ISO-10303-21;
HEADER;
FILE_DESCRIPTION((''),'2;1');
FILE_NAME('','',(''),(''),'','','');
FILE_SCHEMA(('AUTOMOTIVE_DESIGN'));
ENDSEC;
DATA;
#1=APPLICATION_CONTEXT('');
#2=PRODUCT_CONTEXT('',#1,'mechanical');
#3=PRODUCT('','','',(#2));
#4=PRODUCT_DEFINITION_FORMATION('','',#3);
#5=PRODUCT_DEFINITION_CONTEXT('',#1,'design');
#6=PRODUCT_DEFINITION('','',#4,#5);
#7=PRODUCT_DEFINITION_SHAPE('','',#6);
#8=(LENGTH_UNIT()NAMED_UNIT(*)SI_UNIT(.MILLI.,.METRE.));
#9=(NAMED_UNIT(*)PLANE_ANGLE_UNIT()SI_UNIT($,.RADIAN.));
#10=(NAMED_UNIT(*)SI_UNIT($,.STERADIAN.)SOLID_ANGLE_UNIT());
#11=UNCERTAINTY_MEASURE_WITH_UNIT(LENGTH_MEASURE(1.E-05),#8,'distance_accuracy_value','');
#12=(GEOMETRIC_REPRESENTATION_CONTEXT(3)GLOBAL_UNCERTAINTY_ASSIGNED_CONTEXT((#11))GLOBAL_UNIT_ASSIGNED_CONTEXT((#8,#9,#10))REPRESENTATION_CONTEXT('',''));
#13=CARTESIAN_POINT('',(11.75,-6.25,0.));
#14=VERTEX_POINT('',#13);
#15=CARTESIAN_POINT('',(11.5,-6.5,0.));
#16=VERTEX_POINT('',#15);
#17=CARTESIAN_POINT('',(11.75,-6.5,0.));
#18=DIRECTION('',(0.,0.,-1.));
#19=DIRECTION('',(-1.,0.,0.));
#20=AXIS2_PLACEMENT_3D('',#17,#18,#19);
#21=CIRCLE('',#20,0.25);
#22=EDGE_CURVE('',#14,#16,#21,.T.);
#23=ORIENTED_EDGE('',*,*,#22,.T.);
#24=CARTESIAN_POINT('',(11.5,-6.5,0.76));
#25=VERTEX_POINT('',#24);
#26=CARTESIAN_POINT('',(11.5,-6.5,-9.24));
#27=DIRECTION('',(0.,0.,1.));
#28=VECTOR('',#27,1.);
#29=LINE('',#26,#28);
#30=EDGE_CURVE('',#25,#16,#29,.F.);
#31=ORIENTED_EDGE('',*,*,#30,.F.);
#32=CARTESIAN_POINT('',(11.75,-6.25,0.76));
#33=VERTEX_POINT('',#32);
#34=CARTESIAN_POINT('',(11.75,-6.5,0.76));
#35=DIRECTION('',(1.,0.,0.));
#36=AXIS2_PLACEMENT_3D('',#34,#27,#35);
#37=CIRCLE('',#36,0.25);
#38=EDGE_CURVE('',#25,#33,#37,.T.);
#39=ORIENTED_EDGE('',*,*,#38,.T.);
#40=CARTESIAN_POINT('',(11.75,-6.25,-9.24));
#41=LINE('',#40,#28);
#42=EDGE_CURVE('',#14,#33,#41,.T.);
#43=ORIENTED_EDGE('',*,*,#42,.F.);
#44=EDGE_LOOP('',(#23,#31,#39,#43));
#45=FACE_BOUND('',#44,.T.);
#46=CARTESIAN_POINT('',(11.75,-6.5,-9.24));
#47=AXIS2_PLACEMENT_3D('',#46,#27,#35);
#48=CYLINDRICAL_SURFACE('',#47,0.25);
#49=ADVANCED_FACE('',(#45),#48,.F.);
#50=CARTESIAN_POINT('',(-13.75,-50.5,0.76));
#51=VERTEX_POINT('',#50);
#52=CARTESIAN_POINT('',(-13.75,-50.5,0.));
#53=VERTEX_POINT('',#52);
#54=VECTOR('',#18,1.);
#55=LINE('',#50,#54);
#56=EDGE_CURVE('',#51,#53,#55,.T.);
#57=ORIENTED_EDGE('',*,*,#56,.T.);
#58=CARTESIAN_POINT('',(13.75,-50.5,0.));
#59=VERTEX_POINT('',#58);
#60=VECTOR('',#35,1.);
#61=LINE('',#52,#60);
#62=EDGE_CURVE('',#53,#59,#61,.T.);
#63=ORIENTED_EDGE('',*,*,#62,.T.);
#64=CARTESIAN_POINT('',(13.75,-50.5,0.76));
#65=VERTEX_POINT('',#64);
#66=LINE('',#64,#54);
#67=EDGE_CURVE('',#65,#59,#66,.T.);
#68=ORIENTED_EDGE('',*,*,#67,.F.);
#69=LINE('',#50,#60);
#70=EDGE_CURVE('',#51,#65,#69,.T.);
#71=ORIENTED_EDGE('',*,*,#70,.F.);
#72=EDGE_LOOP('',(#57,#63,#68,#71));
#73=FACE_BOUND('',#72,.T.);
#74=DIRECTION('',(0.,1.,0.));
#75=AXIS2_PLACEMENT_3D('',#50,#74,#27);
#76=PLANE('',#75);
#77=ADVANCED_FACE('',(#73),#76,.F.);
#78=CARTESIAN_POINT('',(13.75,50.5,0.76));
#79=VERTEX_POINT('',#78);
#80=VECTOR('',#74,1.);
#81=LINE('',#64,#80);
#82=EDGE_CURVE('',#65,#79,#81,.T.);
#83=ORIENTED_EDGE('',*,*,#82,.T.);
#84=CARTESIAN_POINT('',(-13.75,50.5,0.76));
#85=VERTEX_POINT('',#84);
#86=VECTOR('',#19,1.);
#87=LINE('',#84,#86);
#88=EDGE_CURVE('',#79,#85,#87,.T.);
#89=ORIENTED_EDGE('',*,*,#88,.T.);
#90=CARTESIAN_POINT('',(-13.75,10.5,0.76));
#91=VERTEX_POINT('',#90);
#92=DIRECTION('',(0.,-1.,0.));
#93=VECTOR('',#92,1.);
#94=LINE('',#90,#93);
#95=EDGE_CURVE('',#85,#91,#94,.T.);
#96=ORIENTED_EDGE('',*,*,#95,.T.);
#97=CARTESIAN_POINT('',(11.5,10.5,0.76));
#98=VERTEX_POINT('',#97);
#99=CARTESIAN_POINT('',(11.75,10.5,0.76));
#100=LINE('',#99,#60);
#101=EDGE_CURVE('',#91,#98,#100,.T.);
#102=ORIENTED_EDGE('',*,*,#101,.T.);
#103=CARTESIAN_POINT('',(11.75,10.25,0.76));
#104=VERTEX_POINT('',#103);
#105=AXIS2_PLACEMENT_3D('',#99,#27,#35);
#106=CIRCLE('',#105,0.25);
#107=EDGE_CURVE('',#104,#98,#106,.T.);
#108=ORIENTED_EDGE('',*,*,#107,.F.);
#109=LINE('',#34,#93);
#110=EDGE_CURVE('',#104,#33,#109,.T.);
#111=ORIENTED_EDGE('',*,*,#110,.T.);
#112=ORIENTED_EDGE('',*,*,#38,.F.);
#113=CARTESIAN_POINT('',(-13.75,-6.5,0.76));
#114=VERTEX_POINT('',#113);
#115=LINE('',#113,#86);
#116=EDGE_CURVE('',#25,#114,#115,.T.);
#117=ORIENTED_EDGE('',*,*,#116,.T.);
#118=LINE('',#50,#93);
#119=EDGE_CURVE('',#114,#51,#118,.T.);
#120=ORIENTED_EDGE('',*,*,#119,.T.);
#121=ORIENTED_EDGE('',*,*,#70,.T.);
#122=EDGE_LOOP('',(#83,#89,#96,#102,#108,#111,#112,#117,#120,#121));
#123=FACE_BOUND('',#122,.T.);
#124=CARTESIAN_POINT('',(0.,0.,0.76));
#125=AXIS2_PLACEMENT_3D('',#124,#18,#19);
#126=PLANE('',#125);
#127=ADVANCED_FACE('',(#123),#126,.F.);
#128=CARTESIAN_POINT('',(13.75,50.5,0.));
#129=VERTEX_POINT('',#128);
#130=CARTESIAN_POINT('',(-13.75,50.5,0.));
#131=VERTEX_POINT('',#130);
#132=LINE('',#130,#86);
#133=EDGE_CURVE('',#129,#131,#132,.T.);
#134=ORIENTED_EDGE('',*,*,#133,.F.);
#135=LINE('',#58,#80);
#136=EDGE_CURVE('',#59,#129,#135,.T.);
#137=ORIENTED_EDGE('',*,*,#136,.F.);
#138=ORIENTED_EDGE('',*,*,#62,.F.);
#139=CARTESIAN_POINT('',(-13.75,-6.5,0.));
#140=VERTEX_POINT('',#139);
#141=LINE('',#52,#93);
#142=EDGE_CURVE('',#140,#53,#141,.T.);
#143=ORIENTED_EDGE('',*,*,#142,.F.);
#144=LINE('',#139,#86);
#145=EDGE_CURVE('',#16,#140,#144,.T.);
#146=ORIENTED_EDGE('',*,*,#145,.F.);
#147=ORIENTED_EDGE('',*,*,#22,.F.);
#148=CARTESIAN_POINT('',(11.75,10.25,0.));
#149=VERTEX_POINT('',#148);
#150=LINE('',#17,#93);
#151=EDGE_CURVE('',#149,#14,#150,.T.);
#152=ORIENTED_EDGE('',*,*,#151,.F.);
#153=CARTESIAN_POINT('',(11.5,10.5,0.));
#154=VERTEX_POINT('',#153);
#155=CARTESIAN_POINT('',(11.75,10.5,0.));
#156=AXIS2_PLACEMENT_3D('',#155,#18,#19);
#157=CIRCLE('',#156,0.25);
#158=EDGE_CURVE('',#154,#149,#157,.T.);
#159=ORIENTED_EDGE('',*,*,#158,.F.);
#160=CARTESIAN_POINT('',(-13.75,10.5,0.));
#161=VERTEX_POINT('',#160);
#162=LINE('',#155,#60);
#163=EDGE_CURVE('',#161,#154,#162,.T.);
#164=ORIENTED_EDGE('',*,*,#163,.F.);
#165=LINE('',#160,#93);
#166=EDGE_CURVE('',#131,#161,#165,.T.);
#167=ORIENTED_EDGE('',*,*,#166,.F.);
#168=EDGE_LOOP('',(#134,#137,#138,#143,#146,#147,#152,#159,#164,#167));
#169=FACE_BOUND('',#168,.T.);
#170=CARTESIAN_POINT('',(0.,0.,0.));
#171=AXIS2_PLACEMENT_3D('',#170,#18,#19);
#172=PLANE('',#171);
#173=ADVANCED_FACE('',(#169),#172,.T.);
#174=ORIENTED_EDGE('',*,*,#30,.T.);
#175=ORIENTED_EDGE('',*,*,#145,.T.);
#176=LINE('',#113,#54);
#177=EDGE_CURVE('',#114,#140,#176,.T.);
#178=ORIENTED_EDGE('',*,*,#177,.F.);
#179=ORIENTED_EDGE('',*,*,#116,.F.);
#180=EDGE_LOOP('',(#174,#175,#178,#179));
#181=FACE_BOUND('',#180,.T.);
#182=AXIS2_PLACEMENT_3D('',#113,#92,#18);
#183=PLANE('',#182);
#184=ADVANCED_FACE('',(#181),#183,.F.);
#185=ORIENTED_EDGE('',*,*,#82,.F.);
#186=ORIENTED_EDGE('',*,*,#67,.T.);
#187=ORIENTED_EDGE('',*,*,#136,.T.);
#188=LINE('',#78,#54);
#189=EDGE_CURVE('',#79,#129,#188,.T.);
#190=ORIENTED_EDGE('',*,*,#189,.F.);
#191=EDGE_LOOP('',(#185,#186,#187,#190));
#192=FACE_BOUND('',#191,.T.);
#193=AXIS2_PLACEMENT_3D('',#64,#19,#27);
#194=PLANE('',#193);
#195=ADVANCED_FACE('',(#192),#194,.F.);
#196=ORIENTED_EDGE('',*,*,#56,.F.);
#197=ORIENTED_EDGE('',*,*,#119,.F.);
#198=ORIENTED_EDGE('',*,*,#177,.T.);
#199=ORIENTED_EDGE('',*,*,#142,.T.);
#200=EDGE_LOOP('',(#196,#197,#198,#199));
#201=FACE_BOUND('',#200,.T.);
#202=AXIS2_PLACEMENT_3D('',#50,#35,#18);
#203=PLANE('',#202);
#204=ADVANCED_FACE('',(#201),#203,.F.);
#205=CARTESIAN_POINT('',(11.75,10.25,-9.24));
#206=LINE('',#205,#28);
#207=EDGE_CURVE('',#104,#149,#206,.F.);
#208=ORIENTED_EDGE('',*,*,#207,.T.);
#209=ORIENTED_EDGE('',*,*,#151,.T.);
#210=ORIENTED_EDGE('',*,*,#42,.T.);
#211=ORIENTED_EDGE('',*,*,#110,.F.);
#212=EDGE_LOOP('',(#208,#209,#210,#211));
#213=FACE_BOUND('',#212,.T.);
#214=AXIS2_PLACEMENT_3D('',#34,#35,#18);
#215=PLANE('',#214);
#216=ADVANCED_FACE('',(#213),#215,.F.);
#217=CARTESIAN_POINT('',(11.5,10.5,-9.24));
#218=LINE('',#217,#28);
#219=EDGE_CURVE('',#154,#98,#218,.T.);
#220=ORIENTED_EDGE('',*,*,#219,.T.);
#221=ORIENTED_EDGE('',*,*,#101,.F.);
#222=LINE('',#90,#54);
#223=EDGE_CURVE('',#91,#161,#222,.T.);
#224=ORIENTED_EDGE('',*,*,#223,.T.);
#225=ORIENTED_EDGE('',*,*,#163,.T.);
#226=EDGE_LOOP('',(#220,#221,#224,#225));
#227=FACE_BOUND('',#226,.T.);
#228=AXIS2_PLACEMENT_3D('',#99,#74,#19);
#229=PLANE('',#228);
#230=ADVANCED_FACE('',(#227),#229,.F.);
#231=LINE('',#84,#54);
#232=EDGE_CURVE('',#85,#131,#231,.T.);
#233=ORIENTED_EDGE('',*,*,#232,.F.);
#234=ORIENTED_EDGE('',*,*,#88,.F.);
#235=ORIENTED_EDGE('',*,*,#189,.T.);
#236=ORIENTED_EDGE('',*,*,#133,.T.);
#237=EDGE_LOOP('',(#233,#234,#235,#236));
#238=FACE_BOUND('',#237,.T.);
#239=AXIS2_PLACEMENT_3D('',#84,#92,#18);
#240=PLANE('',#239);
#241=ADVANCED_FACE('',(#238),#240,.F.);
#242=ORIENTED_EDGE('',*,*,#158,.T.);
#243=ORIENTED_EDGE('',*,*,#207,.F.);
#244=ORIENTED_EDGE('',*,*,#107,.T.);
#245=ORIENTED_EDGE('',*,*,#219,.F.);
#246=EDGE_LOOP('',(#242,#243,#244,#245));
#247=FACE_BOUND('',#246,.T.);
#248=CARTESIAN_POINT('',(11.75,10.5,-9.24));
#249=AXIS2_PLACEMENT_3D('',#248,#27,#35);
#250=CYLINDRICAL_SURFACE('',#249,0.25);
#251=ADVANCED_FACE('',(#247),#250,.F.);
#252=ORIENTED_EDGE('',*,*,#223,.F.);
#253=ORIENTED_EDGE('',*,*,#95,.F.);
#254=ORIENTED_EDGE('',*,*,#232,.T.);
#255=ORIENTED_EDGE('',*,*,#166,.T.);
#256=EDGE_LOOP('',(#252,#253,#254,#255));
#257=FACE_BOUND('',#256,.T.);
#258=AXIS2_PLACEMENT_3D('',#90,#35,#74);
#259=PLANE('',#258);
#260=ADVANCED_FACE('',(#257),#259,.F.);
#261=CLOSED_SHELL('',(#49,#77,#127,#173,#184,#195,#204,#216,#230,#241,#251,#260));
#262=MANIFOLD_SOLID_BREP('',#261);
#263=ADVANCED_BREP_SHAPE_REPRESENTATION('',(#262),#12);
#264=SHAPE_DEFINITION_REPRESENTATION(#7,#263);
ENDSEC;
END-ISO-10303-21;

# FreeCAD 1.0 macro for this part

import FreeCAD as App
import Part
import Sketcher


def add_polygon(sketch, points):
    """Adds a closed chain of lines whose ends are joined by coincident constraints."""
    first, n = sketch.GeometryCount, len(points)
    for a, b in zip(points, points[1:] + points[:1]):
        sketch.addGeometry(Part.LineSegment(App.Vector(*a, 0), App.Vector(*b, 0)), False)
    for i in range(n):
        sketch.addConstraint(Sketcher.Constraint("Coincident", first + i, 2, first + (i + 1) % n, 1))

doc = App.newDocument("Part")
body = doc.addObject("PartDesign::Body", "Body")

# Sketch on XY plane
sketch1 = body.newObject("Sketcher::SketchObject", "Sketch")
sketch1.AttachmentSupport = (doc.getObject("XY_Plane"), [""])
sketch1.MapMode = "FlatFace"
add_polygon(sketch1, [(11.75, -6.5), (-13.75, -6.5), (-13.75, -50.5), (13.75, -50.5), (13.75, 50.5), (-13.75, 50.5), (-13.75, 10.5), (11.75, 10.5)])  # lines 0-7
sketch1.addConstraint([
    Sketcher.Constraint("Horizontal", 0),
    Sketcher.Constraint("Vertical", 1),
    Sketcher.Constraint("Horizontal", 2),
    Sketcher.Constraint("Vertical", 3),
    Sketcher.Constraint("Horizontal", 4),
    Sketcher.Constraint("Vertical", 5),
    Sketcher.Constraint("Horizontal", 6),
    Sketcher.Constraint("Vertical", 7),
    Sketcher.Constraint("Symmetric", 1, 2, 3, 2, -1, 1),
    Sketcher.Constraint("Vertical", 1, 2, 4, 2),
    Sketcher.Constraint("DistanceY", 1, 2, 1, 1, 44.0),
    Sketcher.Constraint("DistanceY", 3, 1, 3, 2, 101.0),
    Sketcher.Constraint("DistanceY", 5, 2, 5, 1, 40.0),
    Sketcher.Constraint("DistanceX", 0, 2, 0, 1, 25.5),
    Sketcher.Constraint("DistanceX", 2, 1, 2, 2, 27.5),
])
pad1 = body.newObject("PartDesign::Pad", "Pad")
pad1.Profile = sketch1
pad1.Length = 0.76

# Sketch on XY plane
sketch2 = body.newObject("Sketcher::SketchObject", "Sketch001")
sketch2.AttachmentSupport = (doc.getObject("XY_Plane"), [""])
sketch2.MapMode = "FlatFace"
sketch2.AttachmentOffset = App.Placement(App.Vector(0, 0, 0.76), App.Rotation())
sketch2.addGeometry([
    Part.Circle(App.Vector(11.75, 10.5, 0), App.Vector(0, 0, 1), 0.25),
    Part.Circle(App.Vector(11.75, -6.5, 0), App.Vector(0, 0, 1), 0.25),
], False)
sketch2.addConstraint([
    Sketcher.Constraint("Equal", 0, 1),
    Sketcher.Constraint("Vertical", 0, 3, 1, 3),
    Sketcher.Constraint("Diameter", 0, 0.5),
    Sketcher.Constraint("DistanceY", 1, 3, 0, 3, 17.0),
    Sketcher.Constraint("DistanceY", -1, 1, 0, 3, 10.5),
    Sketcher.Constraint("DistanceX", -1, 1, 0, 3, 11.75),
])
pocket1 = body.newObject("PartDesign::Pocket", "Pocket")
pocket1.Profile = sketch2
pocket1.Length = 10

doc.recompute()
